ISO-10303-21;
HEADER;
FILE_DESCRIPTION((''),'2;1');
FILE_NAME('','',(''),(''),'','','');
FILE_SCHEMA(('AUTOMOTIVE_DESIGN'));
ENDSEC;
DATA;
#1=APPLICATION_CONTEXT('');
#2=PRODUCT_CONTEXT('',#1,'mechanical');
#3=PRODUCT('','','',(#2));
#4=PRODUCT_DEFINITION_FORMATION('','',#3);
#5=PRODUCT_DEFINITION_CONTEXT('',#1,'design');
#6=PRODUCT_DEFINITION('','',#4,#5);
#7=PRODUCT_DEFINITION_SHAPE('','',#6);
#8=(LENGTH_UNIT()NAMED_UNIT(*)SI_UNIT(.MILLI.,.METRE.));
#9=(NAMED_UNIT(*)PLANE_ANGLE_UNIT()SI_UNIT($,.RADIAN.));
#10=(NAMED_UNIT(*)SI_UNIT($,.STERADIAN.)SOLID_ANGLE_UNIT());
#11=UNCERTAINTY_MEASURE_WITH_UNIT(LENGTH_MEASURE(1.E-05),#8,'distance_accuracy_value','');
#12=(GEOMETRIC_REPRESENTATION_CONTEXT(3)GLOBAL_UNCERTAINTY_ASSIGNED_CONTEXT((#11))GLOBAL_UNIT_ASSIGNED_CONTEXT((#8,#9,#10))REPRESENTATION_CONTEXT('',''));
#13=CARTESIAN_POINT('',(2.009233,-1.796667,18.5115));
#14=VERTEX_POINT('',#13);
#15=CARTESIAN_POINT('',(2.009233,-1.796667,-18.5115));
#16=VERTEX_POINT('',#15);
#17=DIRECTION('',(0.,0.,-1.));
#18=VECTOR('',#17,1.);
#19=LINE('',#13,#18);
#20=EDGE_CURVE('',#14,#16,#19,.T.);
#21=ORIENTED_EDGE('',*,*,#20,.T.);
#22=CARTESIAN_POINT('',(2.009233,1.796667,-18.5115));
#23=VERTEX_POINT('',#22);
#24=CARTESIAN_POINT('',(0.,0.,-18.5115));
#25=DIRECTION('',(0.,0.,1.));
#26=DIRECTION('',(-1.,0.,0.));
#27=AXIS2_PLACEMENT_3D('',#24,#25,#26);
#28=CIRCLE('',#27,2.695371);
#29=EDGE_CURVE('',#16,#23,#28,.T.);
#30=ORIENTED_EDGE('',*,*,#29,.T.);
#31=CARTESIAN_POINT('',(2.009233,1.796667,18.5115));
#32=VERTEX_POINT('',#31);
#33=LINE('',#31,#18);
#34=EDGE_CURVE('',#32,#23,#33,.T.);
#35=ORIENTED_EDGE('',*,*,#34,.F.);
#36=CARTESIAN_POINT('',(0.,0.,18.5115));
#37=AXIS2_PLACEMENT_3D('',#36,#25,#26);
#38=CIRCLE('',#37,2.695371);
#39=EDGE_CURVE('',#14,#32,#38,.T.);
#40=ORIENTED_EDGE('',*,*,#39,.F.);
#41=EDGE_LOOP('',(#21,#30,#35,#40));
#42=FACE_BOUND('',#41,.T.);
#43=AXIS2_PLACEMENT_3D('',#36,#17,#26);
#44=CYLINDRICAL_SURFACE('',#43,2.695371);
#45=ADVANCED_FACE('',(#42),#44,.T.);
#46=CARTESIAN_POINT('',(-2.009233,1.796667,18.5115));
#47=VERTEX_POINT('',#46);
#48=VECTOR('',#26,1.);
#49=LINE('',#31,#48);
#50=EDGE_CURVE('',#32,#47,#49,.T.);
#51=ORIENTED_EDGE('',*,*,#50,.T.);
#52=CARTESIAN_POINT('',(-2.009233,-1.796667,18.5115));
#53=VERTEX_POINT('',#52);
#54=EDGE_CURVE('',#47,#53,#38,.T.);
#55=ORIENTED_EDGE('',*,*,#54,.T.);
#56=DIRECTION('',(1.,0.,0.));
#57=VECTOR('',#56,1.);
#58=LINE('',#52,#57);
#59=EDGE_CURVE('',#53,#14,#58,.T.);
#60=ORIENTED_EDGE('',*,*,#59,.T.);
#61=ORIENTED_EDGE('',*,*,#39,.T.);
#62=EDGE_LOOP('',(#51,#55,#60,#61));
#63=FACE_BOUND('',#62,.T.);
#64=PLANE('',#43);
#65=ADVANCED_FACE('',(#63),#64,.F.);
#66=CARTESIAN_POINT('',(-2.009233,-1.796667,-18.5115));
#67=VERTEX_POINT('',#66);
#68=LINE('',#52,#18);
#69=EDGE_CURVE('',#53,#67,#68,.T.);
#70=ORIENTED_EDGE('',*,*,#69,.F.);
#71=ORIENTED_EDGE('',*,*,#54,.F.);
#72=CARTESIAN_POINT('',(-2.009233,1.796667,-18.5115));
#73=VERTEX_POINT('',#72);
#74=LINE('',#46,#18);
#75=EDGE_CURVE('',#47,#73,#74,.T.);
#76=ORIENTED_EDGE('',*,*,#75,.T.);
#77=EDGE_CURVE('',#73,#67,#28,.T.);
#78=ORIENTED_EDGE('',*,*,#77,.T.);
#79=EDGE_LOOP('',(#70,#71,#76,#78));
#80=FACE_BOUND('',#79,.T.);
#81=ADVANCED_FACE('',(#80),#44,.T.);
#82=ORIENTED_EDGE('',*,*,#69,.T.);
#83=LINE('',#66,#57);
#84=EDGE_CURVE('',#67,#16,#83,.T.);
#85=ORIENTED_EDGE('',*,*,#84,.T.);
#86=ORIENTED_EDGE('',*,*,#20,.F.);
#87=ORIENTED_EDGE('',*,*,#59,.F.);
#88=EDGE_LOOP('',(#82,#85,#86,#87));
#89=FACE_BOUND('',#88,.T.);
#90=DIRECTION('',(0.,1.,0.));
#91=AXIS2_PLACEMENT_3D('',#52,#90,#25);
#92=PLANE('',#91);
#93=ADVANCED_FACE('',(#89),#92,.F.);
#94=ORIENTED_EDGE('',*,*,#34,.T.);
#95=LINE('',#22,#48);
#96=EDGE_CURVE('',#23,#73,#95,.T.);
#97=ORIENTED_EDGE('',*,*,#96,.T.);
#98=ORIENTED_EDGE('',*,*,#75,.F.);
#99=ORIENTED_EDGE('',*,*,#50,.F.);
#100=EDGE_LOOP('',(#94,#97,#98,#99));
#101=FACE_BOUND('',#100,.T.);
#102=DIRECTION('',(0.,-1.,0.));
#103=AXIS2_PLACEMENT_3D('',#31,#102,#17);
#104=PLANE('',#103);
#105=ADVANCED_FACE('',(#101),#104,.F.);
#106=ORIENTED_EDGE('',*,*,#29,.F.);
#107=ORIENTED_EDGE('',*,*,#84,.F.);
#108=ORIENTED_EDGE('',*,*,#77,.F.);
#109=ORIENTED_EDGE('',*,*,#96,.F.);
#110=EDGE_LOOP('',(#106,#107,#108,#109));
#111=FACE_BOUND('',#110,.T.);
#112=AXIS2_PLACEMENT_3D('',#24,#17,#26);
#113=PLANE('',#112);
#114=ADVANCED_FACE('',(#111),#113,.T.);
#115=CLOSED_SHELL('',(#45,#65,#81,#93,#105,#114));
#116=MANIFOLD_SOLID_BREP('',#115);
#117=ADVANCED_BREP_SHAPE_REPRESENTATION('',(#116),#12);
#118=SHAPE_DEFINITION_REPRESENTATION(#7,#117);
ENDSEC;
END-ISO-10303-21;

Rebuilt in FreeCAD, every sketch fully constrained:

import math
import FreeCAD as App
import Part
import Sketcher
from FreeCAD import Vector
Q = App.Units.Quantity

doc = App.newDocument("Part")
body = doc.addObject("PartDesign::Body", "Body")

# Sketch on XY plane
sketch1 = body.newObject("Sketcher::SketchObject", "Sketch")
sketch1.AttachmentSupport = (doc.getObject("XY_Plane"), [""])
sketch1.MapMode = "FlatFace"
sketch1.addGeometry(Part.LineSegment(Vector(2, 1.8, 0), Vector(-2, 1.8, 0)), False)
sketch1.addGeometry(Part.ArcOfCircle(Part.Circle(Vector(0, 0, 0), Vector(0, 0, 1), 2.7), math.radians(138), math.radians(222)), False)
sketch1.addGeometry(Part.LineSegment(Vector(-2, -1.8, 0), Vector(2, -1.8, 0)), False)
sketch1.addGeometry(Part.ArcOfCircle(Part.Circle(Vector(0, 0, 0), Vector(0, 0, 1), 2.7), math.radians(-42), math.radians(42)), False)
sketch1.addConstraint(Sketcher.Constraint("Coincident", 0, 2, 1, 1))
sketch1.addConstraint(Sketcher.Constraint("Coincident", 1, 2, 2, 1))
sketch1.addConstraint(Sketcher.Constraint("Coincident", 2, 2, 3, 1))
sketch1.addConstraint(Sketcher.Constraint("Coincident", 3, 2, 0, 1))
sketch1.addConstraint(Sketcher.Constraint("Horizontal", 0))
sketch1.addConstraint(Sketcher.Constraint("Horizontal", 2))
sketch1.addConstraint(Sketcher.Constraint("Coincident", 1, 3, -1, 1))
sketch1.addConstraint(Sketcher.Constraint("Coincident", 3, 3, -1, 1))
sketch1.addConstraint(Sketcher.Constraint("Equal", 1, 3))
sketch1.addConstraint(Sketcher.Constraint("Vertical", 0, 2, 1, 2))
sketch1.addConstraint(Sketcher.Constraint("Radius", 1, Q("2.695371 mm")))
sketch1.addConstraint(Sketcher.Constraint("DistanceX", 0, 2, 0, 1, Q("4.018465 mm")))
pad1 = body.newObject("PartDesign::Pad", "Pad")
pad1.Profile = sketch1
pad1.Length = 37.023
pad1.Midplane = True

doc.recompute()
